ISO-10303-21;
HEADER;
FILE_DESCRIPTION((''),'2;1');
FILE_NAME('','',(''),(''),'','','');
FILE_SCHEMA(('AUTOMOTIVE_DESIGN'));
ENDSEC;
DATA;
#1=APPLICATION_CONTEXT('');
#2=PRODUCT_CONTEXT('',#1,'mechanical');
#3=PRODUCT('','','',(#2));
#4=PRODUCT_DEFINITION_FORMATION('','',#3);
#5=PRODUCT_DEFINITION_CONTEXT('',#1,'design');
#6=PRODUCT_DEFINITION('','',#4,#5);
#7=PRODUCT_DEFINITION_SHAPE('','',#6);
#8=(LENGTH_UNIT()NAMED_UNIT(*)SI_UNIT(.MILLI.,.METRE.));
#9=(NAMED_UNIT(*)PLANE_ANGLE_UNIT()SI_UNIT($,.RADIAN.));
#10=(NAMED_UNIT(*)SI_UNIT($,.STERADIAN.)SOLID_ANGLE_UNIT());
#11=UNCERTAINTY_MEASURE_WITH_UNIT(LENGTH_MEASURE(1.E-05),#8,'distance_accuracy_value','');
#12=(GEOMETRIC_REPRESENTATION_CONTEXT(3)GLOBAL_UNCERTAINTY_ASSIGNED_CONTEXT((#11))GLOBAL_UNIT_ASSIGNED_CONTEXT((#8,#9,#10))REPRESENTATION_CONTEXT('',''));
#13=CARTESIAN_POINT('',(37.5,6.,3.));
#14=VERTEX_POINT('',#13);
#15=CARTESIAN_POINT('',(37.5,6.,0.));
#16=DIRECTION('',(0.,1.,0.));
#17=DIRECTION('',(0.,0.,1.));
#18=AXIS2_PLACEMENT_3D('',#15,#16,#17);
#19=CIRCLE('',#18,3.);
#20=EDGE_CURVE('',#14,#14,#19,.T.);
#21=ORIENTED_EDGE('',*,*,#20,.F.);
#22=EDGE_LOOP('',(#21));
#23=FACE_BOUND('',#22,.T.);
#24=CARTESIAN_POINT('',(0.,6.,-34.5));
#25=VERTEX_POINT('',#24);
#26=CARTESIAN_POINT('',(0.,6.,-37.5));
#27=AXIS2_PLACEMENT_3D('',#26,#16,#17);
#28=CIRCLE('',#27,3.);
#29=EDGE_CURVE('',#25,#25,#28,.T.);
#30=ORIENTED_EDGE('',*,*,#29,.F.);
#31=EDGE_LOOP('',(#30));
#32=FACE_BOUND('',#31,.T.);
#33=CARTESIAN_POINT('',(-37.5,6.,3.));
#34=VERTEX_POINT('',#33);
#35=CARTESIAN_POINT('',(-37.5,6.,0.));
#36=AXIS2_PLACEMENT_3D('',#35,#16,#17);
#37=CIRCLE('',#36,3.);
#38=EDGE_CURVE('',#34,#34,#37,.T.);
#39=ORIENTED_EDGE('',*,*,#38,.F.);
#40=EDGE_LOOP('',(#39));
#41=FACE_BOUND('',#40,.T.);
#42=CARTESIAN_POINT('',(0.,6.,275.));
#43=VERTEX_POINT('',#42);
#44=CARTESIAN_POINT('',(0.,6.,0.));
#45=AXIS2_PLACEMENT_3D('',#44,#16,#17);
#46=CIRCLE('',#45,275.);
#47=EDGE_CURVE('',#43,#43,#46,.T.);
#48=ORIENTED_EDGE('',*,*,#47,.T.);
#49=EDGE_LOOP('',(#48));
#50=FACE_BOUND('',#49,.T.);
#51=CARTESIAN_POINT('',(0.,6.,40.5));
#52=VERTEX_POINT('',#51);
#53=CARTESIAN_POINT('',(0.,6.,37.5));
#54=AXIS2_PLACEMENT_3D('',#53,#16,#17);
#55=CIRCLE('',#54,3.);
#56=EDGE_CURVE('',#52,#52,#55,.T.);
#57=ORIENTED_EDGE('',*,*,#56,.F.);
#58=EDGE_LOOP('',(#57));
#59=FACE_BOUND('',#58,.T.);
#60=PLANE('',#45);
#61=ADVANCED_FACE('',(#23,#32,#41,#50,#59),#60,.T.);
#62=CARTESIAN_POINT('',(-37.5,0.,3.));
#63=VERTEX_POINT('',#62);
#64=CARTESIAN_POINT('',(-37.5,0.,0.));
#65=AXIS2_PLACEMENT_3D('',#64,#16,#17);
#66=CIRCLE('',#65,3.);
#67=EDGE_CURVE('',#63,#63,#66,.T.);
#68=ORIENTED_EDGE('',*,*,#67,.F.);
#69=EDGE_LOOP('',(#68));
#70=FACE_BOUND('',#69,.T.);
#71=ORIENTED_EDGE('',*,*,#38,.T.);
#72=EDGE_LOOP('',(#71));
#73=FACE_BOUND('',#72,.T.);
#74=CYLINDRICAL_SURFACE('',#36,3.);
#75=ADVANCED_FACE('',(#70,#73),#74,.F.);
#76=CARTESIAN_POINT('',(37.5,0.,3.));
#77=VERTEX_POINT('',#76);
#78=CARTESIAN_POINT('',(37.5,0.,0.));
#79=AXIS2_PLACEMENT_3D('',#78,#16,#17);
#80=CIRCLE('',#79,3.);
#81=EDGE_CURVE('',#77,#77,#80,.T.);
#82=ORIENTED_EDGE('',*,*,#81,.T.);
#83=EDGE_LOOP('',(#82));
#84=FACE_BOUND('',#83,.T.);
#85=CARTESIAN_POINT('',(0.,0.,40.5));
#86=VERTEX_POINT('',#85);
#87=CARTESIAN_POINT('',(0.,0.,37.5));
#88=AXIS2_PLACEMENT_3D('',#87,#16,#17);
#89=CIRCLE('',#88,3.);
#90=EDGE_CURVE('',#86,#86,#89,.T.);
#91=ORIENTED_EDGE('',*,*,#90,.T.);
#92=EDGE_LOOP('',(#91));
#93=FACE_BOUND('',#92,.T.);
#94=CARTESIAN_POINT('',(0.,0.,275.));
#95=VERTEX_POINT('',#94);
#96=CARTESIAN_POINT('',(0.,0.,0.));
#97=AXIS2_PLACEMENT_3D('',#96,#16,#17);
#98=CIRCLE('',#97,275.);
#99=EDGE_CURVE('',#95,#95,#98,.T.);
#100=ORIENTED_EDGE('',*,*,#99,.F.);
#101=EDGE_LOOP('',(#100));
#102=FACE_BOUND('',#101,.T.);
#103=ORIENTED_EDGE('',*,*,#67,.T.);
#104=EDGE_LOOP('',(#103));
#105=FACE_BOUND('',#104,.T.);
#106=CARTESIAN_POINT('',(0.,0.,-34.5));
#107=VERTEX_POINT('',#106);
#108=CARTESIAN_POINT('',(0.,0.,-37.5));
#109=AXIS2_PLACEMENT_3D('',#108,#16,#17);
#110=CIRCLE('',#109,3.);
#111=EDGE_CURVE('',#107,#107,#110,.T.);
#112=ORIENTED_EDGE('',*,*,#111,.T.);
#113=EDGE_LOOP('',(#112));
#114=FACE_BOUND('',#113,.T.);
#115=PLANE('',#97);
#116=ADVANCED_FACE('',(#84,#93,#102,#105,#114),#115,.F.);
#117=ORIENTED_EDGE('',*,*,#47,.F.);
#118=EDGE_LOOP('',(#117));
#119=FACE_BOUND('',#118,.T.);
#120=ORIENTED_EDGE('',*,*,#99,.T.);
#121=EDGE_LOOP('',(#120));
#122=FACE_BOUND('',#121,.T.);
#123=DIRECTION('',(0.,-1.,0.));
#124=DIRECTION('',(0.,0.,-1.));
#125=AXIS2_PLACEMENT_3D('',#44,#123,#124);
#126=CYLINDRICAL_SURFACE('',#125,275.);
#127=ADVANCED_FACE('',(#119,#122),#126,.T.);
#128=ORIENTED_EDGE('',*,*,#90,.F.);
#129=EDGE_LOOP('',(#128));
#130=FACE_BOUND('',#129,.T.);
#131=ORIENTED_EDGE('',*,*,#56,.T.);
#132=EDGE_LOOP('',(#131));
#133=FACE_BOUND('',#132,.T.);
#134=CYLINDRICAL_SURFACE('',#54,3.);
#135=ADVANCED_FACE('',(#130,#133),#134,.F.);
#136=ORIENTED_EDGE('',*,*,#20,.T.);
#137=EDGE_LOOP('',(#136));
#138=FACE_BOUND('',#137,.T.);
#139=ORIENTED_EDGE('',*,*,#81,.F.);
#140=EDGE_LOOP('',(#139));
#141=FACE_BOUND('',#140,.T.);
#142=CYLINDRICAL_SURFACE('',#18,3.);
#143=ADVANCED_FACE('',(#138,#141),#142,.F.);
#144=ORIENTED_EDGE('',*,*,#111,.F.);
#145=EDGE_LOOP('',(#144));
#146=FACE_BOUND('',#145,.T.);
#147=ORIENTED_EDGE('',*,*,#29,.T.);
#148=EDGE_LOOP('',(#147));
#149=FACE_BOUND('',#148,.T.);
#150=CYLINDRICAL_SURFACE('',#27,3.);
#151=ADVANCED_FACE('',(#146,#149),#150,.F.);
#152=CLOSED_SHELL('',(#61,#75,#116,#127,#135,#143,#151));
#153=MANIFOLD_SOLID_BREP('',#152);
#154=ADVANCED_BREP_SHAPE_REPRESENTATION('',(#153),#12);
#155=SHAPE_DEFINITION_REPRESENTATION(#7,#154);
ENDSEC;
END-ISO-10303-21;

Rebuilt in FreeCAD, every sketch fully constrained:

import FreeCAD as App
import Part
import Sketcher

doc = App.newDocument("Part")
body = doc.addObject("PartDesign::Body", "Body")

# Sketch on XZ plane
sketch1 = body.newObject("Sketcher::SketchObject", "Sketch")
sketch1.AttachmentSupport = (doc.getObject("XZ_Plane"), [""])
sketch1.MapMode = "FlatFace"
sketch1.addGeometry(Part.Circle(App.Vector(0, 0, 0), App.Vector(0, 0, 1), 275), False)
sketch1.addConstraint(Sketcher.Constraint("Coincident", 0, 3, -1, 1))
sketch1.addConstraint(Sketcher.Constraint("Diameter", 0, 550.0))
pad1 = body.newObject("PartDesign::Pad", "Pad")
pad1.Profile = sketch1
pad1.Length = 6
pad1.Reversed = True

# Sketch on XZ plane
sketch2 = body.newObject("Sketcher::SketchObject", "Sketch001")
sketch2.AttachmentSupport = (doc.getObject("XZ_Plane"), [""])
sketch2.MapMode = "FlatFace"
sketch2.AttachmentOffset = App.Placement(App.Vector(0, 0, -6), App.Rotation())
sketch2.addGeometry(Part.Circle(App.Vector(0, -37.5, 0), App.Vector(0, 0, 1), 3), False)
sketch2.addGeometry(Part.Circle(App.Vector(37.5, 0, 0), App.Vector(0, 0, 1), 3), False)
sketch2.addGeometry(Part.Circle(App.Vector(0, 37.5, 0), App.Vector(0, 0, 1), 3), False)
sketch2.addGeometry(Part.Circle(App.Vector(-37.5, 0, 0), App.Vector(0, 0, 1), 3), False)
sketch2.addConstraint(Sketcher.Constraint("Equal", 0, 1))
sketch2.addConstraint(Sketcher.Constraint("Equal", 1, 2))
sketch2.addConstraint(Sketcher.Constraint("Equal", 2, 3))
sketch2.addConstraint(Sketcher.Constraint("Symmetric", 0, 3, 2, 3, -1, 1))
sketch2.addConstraint(Sketcher.Constraint("Symmetric", 1, 3, 3, 3, -1, 1))
sketch2.addConstraint(Sketcher.Constraint("PointOnObject", 0, 3, -2))
sketch2.addConstraint(Sketcher.Constraint("PointOnObject", 1, 3, -1))
sketch2.addConstraint(Sketcher.Constraint("Diameter", 0, 6.0))
sketch2.addConstraint(Sketcher.Constraint("DistanceY", 0, 3, 2, 3, 75.0))
sketch2.addConstraint(Sketcher.Constraint("DistanceX", 3, 3, 1, 3, 75.0))
doc.recompute()
hole = body.newObject("PartDesign::Hole", "Hole")
hole.Profile = sketch2
hole.ThreadType = "None"
hole.Diameter = 6
hole.DepthType = "ThroughAll"
hole.Reversed = True

doc.recompute()
